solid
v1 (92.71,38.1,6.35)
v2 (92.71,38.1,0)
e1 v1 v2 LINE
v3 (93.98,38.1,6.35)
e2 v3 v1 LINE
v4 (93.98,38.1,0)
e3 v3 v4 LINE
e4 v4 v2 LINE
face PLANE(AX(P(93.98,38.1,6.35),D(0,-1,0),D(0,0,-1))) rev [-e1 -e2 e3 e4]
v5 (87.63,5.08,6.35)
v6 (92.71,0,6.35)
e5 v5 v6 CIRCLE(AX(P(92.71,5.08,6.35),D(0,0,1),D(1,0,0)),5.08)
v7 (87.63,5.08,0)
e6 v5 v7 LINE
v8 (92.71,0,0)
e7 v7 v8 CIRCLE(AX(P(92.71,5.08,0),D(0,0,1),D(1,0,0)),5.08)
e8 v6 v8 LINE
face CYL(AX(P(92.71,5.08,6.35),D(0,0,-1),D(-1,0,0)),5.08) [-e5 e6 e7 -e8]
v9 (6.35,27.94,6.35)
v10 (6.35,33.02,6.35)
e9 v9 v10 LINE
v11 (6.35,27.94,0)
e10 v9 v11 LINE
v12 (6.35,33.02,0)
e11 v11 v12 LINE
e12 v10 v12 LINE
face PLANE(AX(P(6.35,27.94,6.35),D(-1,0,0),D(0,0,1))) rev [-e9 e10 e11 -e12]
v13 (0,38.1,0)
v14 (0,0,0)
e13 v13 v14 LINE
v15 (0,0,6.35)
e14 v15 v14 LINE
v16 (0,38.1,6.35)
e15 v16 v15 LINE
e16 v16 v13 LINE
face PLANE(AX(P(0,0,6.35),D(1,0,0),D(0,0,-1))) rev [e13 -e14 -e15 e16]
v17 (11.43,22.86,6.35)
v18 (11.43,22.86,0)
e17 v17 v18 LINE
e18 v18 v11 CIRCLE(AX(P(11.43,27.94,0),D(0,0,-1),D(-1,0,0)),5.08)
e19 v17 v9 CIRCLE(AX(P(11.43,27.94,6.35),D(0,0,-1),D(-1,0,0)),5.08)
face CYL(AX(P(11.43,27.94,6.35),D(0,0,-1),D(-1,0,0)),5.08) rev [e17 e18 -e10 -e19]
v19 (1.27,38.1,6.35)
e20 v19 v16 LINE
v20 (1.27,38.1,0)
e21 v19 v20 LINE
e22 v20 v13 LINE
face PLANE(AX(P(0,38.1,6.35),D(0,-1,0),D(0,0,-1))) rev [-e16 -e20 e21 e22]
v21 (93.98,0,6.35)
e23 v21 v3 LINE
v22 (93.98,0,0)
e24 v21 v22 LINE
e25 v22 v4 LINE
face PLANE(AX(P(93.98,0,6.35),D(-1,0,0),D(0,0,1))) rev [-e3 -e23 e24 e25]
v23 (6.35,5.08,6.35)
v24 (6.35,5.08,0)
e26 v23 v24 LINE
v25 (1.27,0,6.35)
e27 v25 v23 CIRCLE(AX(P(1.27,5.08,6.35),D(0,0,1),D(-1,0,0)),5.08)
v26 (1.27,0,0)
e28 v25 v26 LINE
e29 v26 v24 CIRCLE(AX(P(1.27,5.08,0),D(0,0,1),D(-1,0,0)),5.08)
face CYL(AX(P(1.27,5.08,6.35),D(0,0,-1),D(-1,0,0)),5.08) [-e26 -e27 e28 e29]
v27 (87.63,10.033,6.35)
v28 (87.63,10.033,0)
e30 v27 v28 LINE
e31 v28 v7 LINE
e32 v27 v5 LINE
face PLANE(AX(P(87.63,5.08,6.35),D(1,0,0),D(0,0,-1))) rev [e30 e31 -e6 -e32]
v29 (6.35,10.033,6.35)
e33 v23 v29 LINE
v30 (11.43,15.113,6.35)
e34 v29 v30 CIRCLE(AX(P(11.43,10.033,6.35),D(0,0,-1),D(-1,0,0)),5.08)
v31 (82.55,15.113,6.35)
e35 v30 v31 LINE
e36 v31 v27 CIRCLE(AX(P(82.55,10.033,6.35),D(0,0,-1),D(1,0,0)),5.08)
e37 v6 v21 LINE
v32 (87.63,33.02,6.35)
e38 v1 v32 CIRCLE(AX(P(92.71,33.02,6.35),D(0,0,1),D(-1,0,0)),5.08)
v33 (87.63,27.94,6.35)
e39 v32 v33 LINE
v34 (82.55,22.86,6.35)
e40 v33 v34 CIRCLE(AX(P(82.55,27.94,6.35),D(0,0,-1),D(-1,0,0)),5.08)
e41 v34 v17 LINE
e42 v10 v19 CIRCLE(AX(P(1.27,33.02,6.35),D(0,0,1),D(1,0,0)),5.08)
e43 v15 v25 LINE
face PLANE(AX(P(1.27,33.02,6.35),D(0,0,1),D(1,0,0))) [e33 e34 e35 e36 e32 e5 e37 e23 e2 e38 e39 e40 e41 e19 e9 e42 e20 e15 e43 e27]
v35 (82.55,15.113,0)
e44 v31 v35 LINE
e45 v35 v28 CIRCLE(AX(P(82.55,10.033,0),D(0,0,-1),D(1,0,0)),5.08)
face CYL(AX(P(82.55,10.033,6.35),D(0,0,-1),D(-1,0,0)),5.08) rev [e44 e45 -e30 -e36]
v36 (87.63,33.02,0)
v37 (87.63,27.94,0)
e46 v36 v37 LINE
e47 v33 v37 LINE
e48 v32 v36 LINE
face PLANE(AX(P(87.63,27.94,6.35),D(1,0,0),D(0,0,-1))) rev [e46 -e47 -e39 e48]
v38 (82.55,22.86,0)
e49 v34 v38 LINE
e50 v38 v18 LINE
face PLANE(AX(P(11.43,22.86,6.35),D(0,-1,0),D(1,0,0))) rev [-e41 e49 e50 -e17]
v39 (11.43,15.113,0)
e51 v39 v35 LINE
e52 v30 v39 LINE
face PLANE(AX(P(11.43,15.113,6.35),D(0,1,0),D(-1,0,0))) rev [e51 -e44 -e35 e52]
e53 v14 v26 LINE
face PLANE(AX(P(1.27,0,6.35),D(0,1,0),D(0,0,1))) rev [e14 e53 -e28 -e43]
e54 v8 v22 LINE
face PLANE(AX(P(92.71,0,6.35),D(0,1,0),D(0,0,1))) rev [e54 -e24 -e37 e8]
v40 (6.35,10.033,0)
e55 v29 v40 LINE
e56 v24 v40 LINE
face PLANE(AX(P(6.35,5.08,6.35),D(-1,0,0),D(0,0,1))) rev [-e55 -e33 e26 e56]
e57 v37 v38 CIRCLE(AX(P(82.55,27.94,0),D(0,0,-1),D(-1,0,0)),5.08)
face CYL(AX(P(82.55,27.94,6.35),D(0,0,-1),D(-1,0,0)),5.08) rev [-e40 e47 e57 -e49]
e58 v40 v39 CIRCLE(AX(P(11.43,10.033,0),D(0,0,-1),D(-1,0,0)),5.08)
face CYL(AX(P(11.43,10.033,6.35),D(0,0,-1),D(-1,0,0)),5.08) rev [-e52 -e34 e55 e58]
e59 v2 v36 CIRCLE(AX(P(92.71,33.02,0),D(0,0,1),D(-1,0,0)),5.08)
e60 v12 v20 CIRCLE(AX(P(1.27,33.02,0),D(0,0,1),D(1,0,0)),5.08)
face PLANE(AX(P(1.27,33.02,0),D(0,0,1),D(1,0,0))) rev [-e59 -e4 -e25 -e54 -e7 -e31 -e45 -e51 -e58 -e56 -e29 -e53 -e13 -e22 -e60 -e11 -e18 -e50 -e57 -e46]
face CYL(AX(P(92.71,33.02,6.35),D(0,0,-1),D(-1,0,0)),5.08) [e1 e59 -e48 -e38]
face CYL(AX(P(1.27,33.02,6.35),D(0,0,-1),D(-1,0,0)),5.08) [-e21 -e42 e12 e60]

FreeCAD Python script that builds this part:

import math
import FreeCAD as App
import Part
import Sketcher

V = App.Vector
Q = App.Units.Quantity

doc = App.newDocument("Part")
params = doc.addObject("Spreadsheet::Sheet", "Params")
for row, (alias, value) in enumerate([
    ("sketch1_radius", "0.2 in"),
    ("sketch1_width", "2.8 in"),
    ("sketch1_height", "1.5 in"),
    ("sketch1_height2", "0.2 in"),
    ("sketch1_width2", "0.05 in"),
    ("pad1_length", "0.25 in"),
], start=1):
    params.set(f"A{row}", alias)
    params.set(f"B{row}", "=" + value)
    params.setAlias(f"B{row}", alias)

body = doc.addObject("PartDesign::Body", "Body")

sketch1 = body.newObject("Sketcher::SketchObject", "Sketch")
sketch1.AttachmentSupport = (doc.getObject("XY_Plane"), [""])
sketch1.MapMode = "FlatFace"
sketch1.addGeometry([
    Part.LineSegment(V(0, 38.1, 0), V(0, 0, 0)),
    Part.LineSegment(V(0, 0, 0), V(1.3, 0, 0)),
    Part.ArcOfCircle(Part.Circle(V(1.3, 5.1, 0), V(0, 0, 1), 5.1), math.radians(-90), math.radians(0)),
    Part.LineSegment(V(6.3, 5.1, 0), V(6.3, 10, 0)),
    Part.ArcOfCircle(Part.Circle(V(11.4, 10, 0), V(0, 0, 1), 5.1), math.radians(90), math.radians(180)),
    Part.LineSegment(V(11.4, 15.1, 0), V(82.5, 15.1, 0)),
    Part.ArcOfCircle(Part.Circle(V(82.5, 10, 0), V(0, 0, 1), 5.1), math.radians(0), math.radians(90)),
    Part.LineSegment(V(87.6, 10, 0), V(87.6, 5.1, 0)),
    Part.ArcOfCircle(Part.Circle(V(92.7, 5.1, 0), V(0, 0, 1), 5.1), math.radians(-180), math.radians(-90)),
    Part.LineSegment(V(92.7, 0, 0), V(94, 0, 0)),
    Part.LineSegment(V(94, 0, 0), V(94, 38.1, 0)),
    Part.LineSegment(V(94, 38.1, 0), V(92.7, 38.1, 0)),
    Part.ArcOfCircle(Part.Circle(V(92.7, 33, 0), V(0, 0, 1), 5.1), math.radians(90), math.radians(180)),
    Part.LineSegment(V(87.6, 33, 0), V(87.6, 27.9, 0)),
    Part.ArcOfCircle(Part.Circle(V(82.5, 27.9, 0), V(0, 0, 1), 5.1), math.radians(-90), math.radians(0)),
    Part.LineSegment(V(82.5, 22.9, 0), V(11.4, 22.9, 0)),
    Part.ArcOfCircle(Part.Circle(V(11.4, 27.9, 0), V(0, 0, 1), 5.1), math.radians(-180), math.radians(-90)),
    Part.LineSegment(V(6.3, 27.9, 0), V(6.3, 33, 0)),
    Part.ArcOfCircle(Part.Circle(V(1.3, 33, 0), V(0, 0, 1), 5.1), math.radians(0), math.radians(90)),
    Part.LineSegment(V(1.3, 38.1, 0), V(0, 38.1, 0)),
], False)
sketch1.addConstraint([
    Sketcher.Constraint("Coincident", 0, 2, 1, 1),
    Sketcher.Constraint("Tangent", 1, 2, 2, 1),
    Sketcher.Constraint("Tangent", 2, 2, 3, 1),
    Sketcher.Constraint("Tangent", 3, 2, 4, 2),
    Sketcher.Constraint("Tangent", 4, 1, 5, 1),
    Sketcher.Constraint("Tangent", 5, 2, 6, 2),
    Sketcher.Constraint("Tangent", 6, 1, 7, 1),
    Sketcher.Constraint("Tangent", 7, 2, 8, 1),
    Sketcher.Constraint("Tangent", 8, 2, 9, 1),
    Sketcher.Constraint("Coincident", 9, 2, 10, 1),
    Sketcher.Constraint("Coincident", 10, 2, 11, 1),
    Sketcher.Constraint("Tangent", 11, 2, 12, 1),
    Sketcher.Constraint("Tangent", 12, 2, 13, 1),
    Sketcher.Constraint("Tangent", 13, 2, 14, 2),
    Sketcher.Constraint("Tangent", 14, 1, 15, 1),
    Sketcher.Constraint("Tangent", 15, 2, 16, 2),
    Sketcher.Constraint("Tangent", 16, 1, 17, 1),
    Sketcher.Constraint("Tangent", 17, 2, 18, 1),
    Sketcher.Constraint("Tangent", 18, 2, 19, 1),
    Sketcher.Constraint("Coincident", 19, 2, 0, 1),
    Sketcher.Constraint("Vertical", 0),
    Sketcher.Constraint("Horizontal", 1),
    Sketcher.Constraint("Vertical", 3),
    Sketcher.Constraint("Horizontal", 5),
    Sketcher.Constraint("Vertical", 7),
    Sketcher.Constraint("Horizontal", 9),
    Sketcher.Constraint("Vertical", 10),
    Sketcher.Constraint("Horizontal", 11),
    Sketcher.Constraint("Vertical", 13),
    Sketcher.Constraint("Horizontal", 15),
    Sketcher.Constraint("Vertical", 17),
    Sketcher.Constraint("Horizontal", 19),
    Sketcher.Constraint("Coincident", 0, 2, -1, 1),
    Sketcher.Constraint("Equal", 2, 4),
    Sketcher.Constraint("Equal", 4, 6),
    Sketcher.Constraint("Equal", 6, 8),
    Sketcher.Constraint("Equal", 8, 12),
    Sketcher.Constraint("Equal", 12, 14),
    Sketcher.Constraint("Equal", 14, 16),
    Sketcher.Constraint("Equal", 16, 18),
    Sketcher.Constraint("PointOnObject", 8, 2, -1),
    Sketcher.Constraint("Horizontal", 12, 3, 18, 3),
    Sketcher.Constraint("Vertical", 8, 3, 12, 3),
    Sketcher.Constraint("Vertical", 4, 3, 16, 3),
    Sketcher.Constraint("Equal", 1, 9),
    Sketcher.Constraint("Radius", 2, Q("0.2 in")),
    Sketcher.Constraint("DistanceX", 5, 1, 5, 2, Q("2.8 in")),
    Sketcher.Constraint("DistanceY", 0, 2, 0, 1, Q("1.5 in")),
    Sketcher.Constraint("DistanceY", 13, 2, 13, 1, Q("0.2 in")),
    Sketcher.Constraint("DistanceX", 1, 1, 1, 2, Q("0.05 in")),
    Sketcher.Constraint("DistanceY", 3, 1, 3, 2, Q("0.195 in")),
])
sketch1.setExpression("Constraints[45]", "Params.sketch1_radius")
sketch1.setExpression("Constraints[46]", "Params.sketch1_width")
sketch1.setExpression("Constraints[47]", "Params.sketch1_height")
sketch1.setExpression("Constraints[48]", "Params.sketch1_height2")
sketch1.setExpression("Constraints[49]", "Params.sketch1_width2")
pad1 = body.newObject("PartDesign::Pad", "Pad")
pad1.Profile = sketch1
pad1.setExpression("Length", "Params.pad1_length")

doc.recompute()
